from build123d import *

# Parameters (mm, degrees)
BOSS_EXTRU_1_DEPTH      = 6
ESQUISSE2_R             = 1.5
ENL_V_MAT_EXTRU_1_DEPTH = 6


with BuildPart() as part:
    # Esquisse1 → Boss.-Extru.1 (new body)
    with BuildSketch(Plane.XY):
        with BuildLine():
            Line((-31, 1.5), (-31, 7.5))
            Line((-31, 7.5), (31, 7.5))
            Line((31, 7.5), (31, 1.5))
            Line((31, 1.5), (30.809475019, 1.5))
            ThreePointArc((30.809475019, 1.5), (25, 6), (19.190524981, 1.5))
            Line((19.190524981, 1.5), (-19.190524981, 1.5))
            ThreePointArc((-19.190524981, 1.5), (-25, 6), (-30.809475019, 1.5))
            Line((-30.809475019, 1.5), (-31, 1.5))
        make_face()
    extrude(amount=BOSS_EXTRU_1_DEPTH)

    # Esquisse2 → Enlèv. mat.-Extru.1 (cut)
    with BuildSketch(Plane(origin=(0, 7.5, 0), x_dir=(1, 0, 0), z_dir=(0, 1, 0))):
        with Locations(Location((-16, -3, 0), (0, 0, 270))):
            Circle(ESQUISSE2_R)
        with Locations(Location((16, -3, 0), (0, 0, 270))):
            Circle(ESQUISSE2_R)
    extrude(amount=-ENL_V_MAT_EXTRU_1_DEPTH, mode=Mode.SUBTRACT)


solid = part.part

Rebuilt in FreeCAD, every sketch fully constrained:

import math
import FreeCAD as App
import Part
import Sketcher
Q = App.Units.Quantity

doc = App.newDocument("Part")
body = doc.addObject("PartDesign::Body", "Body")

sketch1 = doc.addObject("Sketcher::SketchObject", "Sketch")
body.addObject(sketch1)
sketch1.AttachmentSupport = (doc.XY_Plane, [""])
sketch1.MapMode = "FlatFace"
sketch1.addGeometry([
    Part.LineSegment(App.Vector(-31, 7.5, 0), App.Vector(-31, 1.5, 0)),
    Part.LineSegment(App.Vector(-31, 1.5, 0), App.Vector(-30.81, 1.5, 0)),
    Part.ArcOfCircle(Part.Circle(App.Vector(-25, 0, 0), App.Vector(0, 0, 1), 6), math.radians(14), math.radians(166)),
    Part.LineSegment(App.Vector(-19.19, 1.5, 0), App.Vector(19.19, 1.5, 0)),
    Part.ArcOfCircle(Part.Circle(App.Vector(25, 0, 0), App.Vector(0, 0, 1), 6), math.radians(14), math.radians(166)),
    Part.LineSegment(App.Vector(30.81, 1.5, 0), App.Vector(31, 1.5, 0)),
    Part.LineSegment(App.Vector(31, 1.5, 0), App.Vector(31, 7.5, 0)),
    Part.LineSegment(App.Vector(31, 7.5, 0), App.Vector(-31, 7.5, 0)),
], False)
sketch1.addConstraint([
    Sketcher.Constraint("Coincident", 0, 2, 1, 1),
    Sketcher.Constraint("Coincident", 1, 2, 2, 2),
    Sketcher.Constraint("Coincident", 2, 1, 3, 1),
    Sketcher.Constraint("Coincident", 3, 2, 4, 2),
    Sketcher.Constraint("Coincident", 4, 1, 5, 1),
    Sketcher.Constraint("Coincident", 5, 2, 6, 1),
    Sketcher.Constraint("Coincident", 6, 2, 7, 1),
    Sketcher.Constraint("Coincident", 7, 2, 0, 1),
    Sketcher.Constraint("Vertical", 0),
    Sketcher.Constraint("Horizontal", 1),
    Sketcher.Constraint("Horizontal", 3),
    Sketcher.Constraint("Horizontal", 5),
    Sketcher.Constraint("Vertical", 6),
    Sketcher.Constraint("Horizontal", 7),
    Sketcher.Constraint("Equal", 2, 4),
    Sketcher.Constraint("Symmetric", 2, 3, 4, 3, -1, 1),
    Sketcher.Constraint("Symmetric", 1, 2, 4, 1, -2),
    Sketcher.Constraint("Horizontal", 1, 2, 2, 1),
    Sketcher.Constraint("Equal", 1, 5),
    Sketcher.Constraint("Radius", 2, Q("6 mm")),
    Sketcher.Constraint("DistanceX", 7, 2, 7, 1, Q("62 mm")),
    Sketcher.Constraint("DistanceY", 0, 2, 0, 1, Q("6 mm")),
    Sketcher.Constraint("DistanceX", 2, 3, -1, 1, Q("25 mm")),
    Sketcher.Constraint("DistanceY", -1, 1, 0, 2, Q("1.5 mm")),
])
pad1 = doc.addObject("PartDesign::Pad", "Pad")
body.addObject(pad1)
pad1.Profile = sketch1
pad1.Length = 6

sketch2 = doc.addObject("Sketcher::SketchObject", "Sketch001")
body.addObject(sketch2)
sketch2.AttachmentSupport = (doc.XZ_Plane, [""])
sketch2.MapMode = "FlatFace"
sketch2.AttachmentOffset = App.Placement(App.Vector(0, 0, -7.5), App.Rotation())
sketch2.addGeometry([
    Part.Circle(App.Vector(-16, 3, 0), App.Vector(0, 0, 1), 1.5),
    Part.Circle(App.Vector(16, 3, 0), App.Vector(0, 0, 1), 1.5),
], False)
sketch2.addConstraint([
    Sketcher.Constraint("Equal", 0, 1),
    Sketcher.Constraint("Symmetric", 0, 3, 1, 3, -2),
    Sketcher.Constraint("Diameter", 0, Q("3 mm")),
    Sketcher.Constraint("DistanceX", 0, 3, -1, 1, Q("16 mm")),
    Sketcher.Constraint("DistanceY", -1, 1, 0, 3, Q("3 mm")),
])
pocket1 = doc.addObject("PartDesign::Pocket", "Pocket")
body.addObject(pocket1)
pocket1.Profile = sketch2
pocket1.Length = 6
pocket1.Reversed = True

doc.recompute()
